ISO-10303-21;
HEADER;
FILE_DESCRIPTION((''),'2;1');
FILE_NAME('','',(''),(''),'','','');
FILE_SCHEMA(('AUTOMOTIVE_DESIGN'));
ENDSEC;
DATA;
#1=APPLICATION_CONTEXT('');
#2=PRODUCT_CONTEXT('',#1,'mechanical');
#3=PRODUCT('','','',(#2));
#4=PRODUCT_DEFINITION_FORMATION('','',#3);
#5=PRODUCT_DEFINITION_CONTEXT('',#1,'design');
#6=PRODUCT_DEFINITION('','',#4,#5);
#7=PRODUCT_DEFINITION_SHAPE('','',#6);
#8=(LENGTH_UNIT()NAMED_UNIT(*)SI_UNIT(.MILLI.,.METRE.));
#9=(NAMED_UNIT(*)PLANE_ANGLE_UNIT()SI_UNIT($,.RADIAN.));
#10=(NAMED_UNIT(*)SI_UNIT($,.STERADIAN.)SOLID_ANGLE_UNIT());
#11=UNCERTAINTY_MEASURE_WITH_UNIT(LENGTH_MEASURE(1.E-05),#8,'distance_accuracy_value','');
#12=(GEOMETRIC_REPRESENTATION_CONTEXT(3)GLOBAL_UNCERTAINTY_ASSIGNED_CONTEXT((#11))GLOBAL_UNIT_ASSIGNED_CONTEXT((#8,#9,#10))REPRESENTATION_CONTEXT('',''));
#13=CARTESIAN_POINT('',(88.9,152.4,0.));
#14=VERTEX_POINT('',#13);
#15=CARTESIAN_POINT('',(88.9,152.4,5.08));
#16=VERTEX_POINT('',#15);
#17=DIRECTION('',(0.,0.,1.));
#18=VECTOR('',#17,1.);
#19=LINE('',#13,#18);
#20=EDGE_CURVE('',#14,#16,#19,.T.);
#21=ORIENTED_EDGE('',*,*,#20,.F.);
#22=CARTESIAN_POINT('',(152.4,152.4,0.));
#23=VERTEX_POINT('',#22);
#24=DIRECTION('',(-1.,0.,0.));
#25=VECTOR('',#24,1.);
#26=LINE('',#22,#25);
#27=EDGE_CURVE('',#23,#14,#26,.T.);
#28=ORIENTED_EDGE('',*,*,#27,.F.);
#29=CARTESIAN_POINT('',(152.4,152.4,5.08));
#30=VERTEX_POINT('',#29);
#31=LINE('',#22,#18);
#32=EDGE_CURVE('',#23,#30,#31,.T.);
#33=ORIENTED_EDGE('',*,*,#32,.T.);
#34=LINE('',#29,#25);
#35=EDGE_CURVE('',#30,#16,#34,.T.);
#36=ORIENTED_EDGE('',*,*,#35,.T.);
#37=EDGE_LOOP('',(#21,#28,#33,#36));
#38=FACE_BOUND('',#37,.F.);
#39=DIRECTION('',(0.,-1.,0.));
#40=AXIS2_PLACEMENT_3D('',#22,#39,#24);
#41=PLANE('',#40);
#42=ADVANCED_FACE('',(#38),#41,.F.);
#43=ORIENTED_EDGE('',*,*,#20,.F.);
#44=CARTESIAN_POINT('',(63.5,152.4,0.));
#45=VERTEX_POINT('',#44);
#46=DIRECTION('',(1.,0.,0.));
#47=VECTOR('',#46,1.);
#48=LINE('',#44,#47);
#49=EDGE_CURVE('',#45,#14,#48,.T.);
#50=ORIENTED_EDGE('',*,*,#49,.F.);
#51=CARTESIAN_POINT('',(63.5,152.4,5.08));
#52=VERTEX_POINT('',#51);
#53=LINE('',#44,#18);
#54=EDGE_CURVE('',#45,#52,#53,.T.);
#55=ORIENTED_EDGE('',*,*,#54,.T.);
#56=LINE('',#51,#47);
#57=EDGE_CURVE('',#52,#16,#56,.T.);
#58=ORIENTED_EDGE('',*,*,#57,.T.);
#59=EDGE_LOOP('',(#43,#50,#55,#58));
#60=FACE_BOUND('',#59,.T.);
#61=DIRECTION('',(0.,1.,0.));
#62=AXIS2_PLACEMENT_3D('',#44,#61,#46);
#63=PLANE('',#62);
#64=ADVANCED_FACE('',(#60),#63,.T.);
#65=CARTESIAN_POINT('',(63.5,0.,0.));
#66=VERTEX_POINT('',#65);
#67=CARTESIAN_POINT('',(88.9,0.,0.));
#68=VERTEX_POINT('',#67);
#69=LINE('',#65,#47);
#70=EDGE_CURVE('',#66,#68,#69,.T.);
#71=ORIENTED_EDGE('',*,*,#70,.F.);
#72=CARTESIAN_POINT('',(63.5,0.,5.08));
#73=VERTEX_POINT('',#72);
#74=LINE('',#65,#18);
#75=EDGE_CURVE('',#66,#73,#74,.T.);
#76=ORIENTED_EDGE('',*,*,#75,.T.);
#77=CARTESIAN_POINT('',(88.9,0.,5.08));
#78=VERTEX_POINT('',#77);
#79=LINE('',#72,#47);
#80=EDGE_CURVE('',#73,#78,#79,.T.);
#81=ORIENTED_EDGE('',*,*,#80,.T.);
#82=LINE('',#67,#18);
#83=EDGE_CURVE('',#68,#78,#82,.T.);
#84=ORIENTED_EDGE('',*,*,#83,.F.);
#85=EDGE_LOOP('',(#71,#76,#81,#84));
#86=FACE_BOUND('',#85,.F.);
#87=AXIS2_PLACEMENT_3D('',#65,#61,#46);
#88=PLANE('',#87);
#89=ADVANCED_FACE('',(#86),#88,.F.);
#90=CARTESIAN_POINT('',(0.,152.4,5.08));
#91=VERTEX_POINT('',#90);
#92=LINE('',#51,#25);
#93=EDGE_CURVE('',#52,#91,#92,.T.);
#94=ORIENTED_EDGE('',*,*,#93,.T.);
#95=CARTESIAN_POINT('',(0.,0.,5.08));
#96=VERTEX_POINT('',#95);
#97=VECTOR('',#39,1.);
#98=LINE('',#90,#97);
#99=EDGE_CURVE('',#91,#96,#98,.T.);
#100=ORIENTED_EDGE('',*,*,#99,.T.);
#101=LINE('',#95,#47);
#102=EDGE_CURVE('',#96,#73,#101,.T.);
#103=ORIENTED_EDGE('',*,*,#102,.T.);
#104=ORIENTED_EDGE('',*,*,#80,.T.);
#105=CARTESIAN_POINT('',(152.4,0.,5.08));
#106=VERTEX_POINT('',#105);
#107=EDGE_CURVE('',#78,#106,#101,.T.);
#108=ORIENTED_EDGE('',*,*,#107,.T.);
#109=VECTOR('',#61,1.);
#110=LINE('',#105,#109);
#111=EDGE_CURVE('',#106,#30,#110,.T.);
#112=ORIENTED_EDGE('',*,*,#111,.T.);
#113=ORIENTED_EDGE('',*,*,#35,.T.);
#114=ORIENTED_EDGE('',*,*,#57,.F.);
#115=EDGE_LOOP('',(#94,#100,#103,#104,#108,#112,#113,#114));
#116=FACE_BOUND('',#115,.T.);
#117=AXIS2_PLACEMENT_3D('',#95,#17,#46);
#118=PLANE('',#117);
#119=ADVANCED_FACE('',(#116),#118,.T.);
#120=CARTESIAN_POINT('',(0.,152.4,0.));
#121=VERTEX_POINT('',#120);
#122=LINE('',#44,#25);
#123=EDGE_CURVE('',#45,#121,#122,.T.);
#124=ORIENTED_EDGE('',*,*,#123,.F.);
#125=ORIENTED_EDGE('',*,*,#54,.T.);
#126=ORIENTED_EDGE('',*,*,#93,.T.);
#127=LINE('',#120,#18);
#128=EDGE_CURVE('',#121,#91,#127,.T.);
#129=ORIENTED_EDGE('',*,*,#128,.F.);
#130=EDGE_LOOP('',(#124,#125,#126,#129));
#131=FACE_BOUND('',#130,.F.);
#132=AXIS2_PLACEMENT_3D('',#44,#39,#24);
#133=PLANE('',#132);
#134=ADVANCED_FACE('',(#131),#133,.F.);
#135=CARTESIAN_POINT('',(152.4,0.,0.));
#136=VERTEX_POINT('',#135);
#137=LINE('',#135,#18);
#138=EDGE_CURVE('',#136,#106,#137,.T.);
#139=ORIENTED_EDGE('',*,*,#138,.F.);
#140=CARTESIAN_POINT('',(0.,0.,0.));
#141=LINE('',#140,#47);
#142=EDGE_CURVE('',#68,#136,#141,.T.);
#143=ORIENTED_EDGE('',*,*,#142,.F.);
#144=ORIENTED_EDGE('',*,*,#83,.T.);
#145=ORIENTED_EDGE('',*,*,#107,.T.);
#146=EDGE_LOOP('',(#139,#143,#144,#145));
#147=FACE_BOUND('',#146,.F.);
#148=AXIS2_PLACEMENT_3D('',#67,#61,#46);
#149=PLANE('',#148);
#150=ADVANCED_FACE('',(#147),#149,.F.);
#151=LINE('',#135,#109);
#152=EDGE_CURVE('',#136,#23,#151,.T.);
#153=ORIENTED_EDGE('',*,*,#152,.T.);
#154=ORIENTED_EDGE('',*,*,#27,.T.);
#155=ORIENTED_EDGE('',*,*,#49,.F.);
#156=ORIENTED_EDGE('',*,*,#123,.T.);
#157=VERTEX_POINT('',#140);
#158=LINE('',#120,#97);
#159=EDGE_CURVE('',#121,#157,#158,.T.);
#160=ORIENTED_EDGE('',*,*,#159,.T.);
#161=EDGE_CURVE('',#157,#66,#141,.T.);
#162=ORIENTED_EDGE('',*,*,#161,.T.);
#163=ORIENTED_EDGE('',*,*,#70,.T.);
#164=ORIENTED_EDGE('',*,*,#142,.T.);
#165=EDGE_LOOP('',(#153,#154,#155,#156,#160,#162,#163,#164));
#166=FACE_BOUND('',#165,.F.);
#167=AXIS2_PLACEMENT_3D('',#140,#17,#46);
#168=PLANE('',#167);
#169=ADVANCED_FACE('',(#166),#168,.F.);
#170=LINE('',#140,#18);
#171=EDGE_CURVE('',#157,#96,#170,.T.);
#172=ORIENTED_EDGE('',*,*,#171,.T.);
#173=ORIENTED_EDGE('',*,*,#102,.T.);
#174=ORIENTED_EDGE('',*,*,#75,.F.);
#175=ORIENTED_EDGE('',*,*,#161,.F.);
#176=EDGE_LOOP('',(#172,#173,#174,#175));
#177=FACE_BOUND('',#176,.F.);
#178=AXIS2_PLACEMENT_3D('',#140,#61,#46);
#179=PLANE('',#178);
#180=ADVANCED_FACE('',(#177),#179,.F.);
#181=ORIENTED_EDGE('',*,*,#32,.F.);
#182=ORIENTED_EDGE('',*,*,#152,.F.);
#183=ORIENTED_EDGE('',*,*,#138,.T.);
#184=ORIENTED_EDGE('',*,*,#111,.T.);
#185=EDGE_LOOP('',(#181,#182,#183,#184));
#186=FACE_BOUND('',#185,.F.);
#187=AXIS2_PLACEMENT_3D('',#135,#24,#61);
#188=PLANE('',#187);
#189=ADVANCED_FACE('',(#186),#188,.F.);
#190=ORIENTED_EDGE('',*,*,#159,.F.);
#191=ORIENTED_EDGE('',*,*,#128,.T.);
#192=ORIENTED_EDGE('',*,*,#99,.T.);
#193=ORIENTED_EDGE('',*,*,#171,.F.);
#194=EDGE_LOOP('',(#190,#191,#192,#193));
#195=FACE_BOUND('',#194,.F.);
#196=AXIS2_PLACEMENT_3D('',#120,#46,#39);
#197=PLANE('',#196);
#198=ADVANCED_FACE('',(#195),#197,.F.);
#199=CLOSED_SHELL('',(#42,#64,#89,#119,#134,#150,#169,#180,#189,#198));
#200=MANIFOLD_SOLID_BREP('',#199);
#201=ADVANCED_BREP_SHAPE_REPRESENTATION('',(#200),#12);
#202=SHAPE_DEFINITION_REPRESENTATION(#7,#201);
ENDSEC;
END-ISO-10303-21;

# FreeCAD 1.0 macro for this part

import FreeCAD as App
import Part
import Sketcher
from FreeCAD import Vector
Q = App.Units.Quantity


def add_polygon(sketch, points):
    """Adds a closed chain of lines whose ends are joined by coincident constraints."""
    first, n = sketch.GeometryCount, len(points)
    for a, b in zip(points, points[1:] + points[:1]):
        sketch.addGeometry(Part.LineSegment(App.Vector(*a, 0), App.Vector(*b, 0)), False)
    for i in range(n):
        sketch.addConstraint(Sketcher.Constraint("Coincident", first + i, 2, first + (i + 1) % n, 1))

doc = App.newDocument("Part")
params = doc.addObject("Spreadsheet::Sheet", "Params")
for row, (alias, value) in enumerate([
    ("sketch1_width", "6 in"),
    ("pad1_length", "0.2 in"),
], start=1):
    params.set(f"A{row}", alias)
    params.set(f"B{row}", "=" + value)
    params.setAlias(f"B{row}", alias)

body = doc.addObject("PartDesign::Body", "Body")

# Sketch on XY plane
sketch1 = body.newObject("Sketcher::SketchObject", "Sketch")
sketch1.AttachmentSupport = (doc.getObject("XY_Plane"), [""])
sketch1.MapMode = "FlatFace"
add_polygon(sketch1, [(0, 152), (0, 0), (152, 0), (152, 152)])  # lines 0-3
sketch1.addConstraint([
    Sketcher.Constraint("Vertical", 0),
    Sketcher.Constraint("Horizontal", 1),
    Sketcher.Constraint("Vertical", 2),
    Sketcher.Constraint("Horizontal", 3),
    Sketcher.Constraint("Coincident", 0, 2, -1, 1),
    Sketcher.Constraint("Equal", 3, 0),
    Sketcher.Constraint("DistanceX", 1, 1, 1, 2, Q("6 in")),
])
sketch1.setExpression("Constraints[10]", "Params.sketch1_width")
pad1 = body.newObject("PartDesign::Pad", "Pad")
pad1.Profile = sketch1
pad1.setExpression("Length", "Params.pad1_length")

doc.recompute()
